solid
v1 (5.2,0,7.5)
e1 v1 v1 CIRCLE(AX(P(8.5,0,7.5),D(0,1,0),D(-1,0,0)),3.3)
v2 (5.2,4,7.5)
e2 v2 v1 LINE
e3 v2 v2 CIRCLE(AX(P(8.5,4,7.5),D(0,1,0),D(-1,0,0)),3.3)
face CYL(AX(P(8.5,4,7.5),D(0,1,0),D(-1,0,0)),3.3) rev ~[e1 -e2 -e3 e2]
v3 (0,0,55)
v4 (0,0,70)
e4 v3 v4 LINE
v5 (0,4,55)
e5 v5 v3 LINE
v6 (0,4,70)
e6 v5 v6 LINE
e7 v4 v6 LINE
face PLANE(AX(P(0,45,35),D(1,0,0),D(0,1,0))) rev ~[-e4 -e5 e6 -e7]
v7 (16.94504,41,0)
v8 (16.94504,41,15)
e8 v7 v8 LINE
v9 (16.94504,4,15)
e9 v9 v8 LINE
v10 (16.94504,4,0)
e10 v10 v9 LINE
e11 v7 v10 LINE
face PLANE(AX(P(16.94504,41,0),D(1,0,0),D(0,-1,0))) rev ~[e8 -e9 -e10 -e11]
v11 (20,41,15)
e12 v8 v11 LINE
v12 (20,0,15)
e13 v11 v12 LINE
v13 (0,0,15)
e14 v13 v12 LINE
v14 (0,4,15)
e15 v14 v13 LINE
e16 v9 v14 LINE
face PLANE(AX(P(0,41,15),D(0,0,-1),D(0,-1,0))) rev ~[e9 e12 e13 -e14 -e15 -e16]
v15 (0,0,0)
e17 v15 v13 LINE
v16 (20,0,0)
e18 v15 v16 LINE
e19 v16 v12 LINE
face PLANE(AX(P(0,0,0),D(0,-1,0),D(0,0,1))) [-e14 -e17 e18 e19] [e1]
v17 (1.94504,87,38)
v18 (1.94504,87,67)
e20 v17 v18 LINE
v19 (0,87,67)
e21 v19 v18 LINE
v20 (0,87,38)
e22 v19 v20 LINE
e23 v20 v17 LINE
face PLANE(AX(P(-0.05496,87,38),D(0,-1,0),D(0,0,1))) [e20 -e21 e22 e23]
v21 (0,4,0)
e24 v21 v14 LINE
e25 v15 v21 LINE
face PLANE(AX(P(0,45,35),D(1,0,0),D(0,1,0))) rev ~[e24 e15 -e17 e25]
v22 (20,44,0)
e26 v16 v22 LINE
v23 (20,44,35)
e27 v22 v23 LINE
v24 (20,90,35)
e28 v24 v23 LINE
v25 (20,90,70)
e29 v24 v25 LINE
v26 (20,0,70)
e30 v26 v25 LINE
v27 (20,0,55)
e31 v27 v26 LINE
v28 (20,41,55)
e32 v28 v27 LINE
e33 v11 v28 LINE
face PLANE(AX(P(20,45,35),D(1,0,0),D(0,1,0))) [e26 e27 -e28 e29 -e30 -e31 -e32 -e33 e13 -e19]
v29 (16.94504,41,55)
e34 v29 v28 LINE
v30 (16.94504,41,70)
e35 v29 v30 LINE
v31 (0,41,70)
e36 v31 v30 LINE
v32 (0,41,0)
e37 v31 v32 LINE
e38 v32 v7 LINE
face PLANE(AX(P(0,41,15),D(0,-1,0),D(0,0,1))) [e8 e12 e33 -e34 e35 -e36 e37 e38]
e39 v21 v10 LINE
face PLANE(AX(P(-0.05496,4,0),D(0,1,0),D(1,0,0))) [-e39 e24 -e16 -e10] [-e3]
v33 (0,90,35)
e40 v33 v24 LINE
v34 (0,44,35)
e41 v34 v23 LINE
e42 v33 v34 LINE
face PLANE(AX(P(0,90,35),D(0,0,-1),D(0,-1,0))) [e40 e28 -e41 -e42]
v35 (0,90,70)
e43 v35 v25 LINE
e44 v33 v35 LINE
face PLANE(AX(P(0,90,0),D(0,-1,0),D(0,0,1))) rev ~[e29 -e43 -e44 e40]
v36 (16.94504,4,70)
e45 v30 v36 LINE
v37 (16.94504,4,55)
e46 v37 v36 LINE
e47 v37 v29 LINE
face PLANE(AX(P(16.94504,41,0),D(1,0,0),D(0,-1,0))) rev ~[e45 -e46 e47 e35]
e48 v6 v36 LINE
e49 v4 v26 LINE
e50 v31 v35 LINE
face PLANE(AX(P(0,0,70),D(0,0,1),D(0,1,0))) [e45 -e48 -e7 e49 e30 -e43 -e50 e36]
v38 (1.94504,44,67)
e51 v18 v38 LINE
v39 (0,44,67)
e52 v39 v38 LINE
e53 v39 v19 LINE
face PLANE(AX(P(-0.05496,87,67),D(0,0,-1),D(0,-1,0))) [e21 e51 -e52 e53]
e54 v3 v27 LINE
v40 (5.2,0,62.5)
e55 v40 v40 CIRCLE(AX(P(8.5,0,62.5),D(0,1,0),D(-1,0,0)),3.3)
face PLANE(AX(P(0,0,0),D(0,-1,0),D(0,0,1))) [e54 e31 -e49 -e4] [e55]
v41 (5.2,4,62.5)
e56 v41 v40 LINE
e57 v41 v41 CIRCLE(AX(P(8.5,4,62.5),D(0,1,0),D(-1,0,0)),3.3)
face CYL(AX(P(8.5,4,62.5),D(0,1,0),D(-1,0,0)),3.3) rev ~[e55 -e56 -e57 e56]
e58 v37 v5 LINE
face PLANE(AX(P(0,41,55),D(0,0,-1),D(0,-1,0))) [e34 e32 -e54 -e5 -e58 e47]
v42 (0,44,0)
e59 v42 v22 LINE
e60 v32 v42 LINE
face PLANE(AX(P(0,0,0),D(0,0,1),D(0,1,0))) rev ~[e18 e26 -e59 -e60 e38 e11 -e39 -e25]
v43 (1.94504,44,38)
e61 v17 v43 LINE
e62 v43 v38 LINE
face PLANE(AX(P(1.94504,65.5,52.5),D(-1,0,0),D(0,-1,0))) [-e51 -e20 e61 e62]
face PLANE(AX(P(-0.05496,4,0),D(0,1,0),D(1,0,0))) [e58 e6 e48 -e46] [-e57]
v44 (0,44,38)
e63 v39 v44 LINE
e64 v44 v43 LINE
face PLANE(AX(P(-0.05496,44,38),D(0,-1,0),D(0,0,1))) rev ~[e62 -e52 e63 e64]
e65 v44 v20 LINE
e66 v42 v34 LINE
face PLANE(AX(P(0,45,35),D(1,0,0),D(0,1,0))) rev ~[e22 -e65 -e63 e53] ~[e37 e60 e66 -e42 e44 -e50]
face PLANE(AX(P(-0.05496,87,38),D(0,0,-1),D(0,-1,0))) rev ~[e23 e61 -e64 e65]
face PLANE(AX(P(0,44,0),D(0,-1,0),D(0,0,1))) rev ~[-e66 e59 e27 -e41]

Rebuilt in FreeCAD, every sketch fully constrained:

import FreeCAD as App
import Part
import Sketcher

V = App.Vector
Q = App.Units.Quantity

doc = App.newDocument("Part")
params = doc.addObject("Spreadsheet::Sheet", "Params")
for row, (alias, value) in enumerate([
    ("sketch1_width", "43 mm"),
    ("sketch1_height", "29 mm"),
    ("pad1_length", "2 mm"),
    ("sketch2_width", "17 mm"),
    ("sketch2_height", "37 mm"),
    ("pad2_length", "70 mm"),
    ("sketch3_width", "41 mm"),
    ("sketch3_height", "40 mm"),
    ("pad3_length", "20 mm"),
    ("sketch4_width", "46 mm"),
    ("sketch4_height", "35 mm"),
    ("pad4_length", "20 mm"),
    ("sketch5_width", "90 mm"),
    ("sketch5_height", "70 mm"),
    ("pad5_length", "20 mm"),
    ("sketch6_diameter", "6.6 mm"),
], start=1):
    params.set(f"A{row}", alias)
    params.set(f"B{row}", "=" + value)
    params.setAlias(f"B{row}", alias)

body = doc.addObject("PartDesign::Body", "Body")

# Sketch on YZ plane
sketch1 = doc.addObject("Sketcher::SketchObject", "Sketch")
body.addObject(sketch1)
sketch1.AttachmentSupport = (doc.YZ_Plane, [""])
sketch1.MapMode = "FlatFace"
sketch1.AttachmentOffset = App.Placement(V(0, 0, -0.05496), App.Rotation())
sketch1.addGeometry([
    Part.LineSegment(V(87, 67, 0), V(87, 38, 0)),
    Part.LineSegment(V(87, 38, 0), V(44, 38, 0)),
    Part.LineSegment(V(44, 38, 0), V(44, 67, 0)),
    Part.LineSegment(V(44, 67, 0), V(87, 67, 0)),
], False)
sketch1.addConstraint([
    Sketcher.Constraint("Coincident", 0, 2, 1, 1),
    Sketcher.Constraint("Coincident", 1, 2, 2, 1),
    Sketcher.Constraint("Coincident", 2, 2, 3, 1),
    Sketcher.Constraint("Coincident", 3, 2, 0, 1),
    Sketcher.Constraint("Vertical", 0),
    Sketcher.Constraint("Horizontal", 1),
    Sketcher.Constraint("Vertical", 2),
    Sketcher.Constraint("Horizontal", 3),
    Sketcher.Constraint("DistanceX", 1, 2, 1, 1, Q("43 mm")),
    Sketcher.Constraint("DistanceY", 0, 2, 0, 1, Q("29 mm")),
    Sketcher.Constraint("DistanceX", -1, 1, 0, 2, Q("87 mm")),
    Sketcher.Constraint("DistanceY", -1, 1, 0, 2, Q("38 mm")),
])
sketch1.setExpression("Constraints[8]", "Params.sketch1_width")
sketch1.setExpression("Constraints[9]", "Params.sketch1_height")
pad1 = doc.addObject("PartDesign::Pad", "Pad")
body.addObject(pad1)
pad1.Profile = sketch1
pad1.setExpression("Length", "Params.pad1_length")
body2 = doc.addObject("PartDesign::Body", "Body001")

# Sketch on XY plane
sketch2 = doc.addObject("Sketcher::SketchObject", "Sketch001")
body2.addObject(sketch2)
sketch2.AttachmentSupport = (doc.getObject("XY_Plane001"), [""])
sketch2.MapMode = "FlatFace"
sketch2.addGeometry([
    Part.LineSegment(V(0, 4, 0), V(0, 41, 0)),
    Part.LineSegment(V(0, 41, 0), V(17, 41, 0)),
    Part.LineSegment(V(17, 41, 0), V(17, 4, 0)),
    Part.LineSegment(V(17, 4, 0), V(0, 4, 0)),
], False)
sketch2.addConstraint([
    Sketcher.Constraint("Coincident", 0, 2, 1, 1),
    Sketcher.Constraint("Coincident", 1, 2, 2, 1),
    Sketcher.Constraint("Coincident", 2, 2, 3, 1),
    Sketcher.Constraint("Coincident", 3, 2, 0, 1),
    Sketcher.Constraint("Vertical", 0),
    Sketcher.Constraint("Horizontal", 1),
    Sketcher.Constraint("Vertical", 2),
    Sketcher.Constraint("Horizontal", 3),
    Sketcher.Constraint("DistanceX", 1, 1, 1, 2, Q("17 mm")),
    Sketcher.Constraint("DistanceY", 0, 1, 0, 2, Q("37 mm")),
    Sketcher.Constraint("DistanceY", -1, 1, 0, 2, Q("41 mm")),
    Sketcher.Constraint("DistanceX", 0, 2, -1, 1, Q("0.05496 mm")),
])
sketch2.setExpression("Constraints[8]", "Params.sketch2_width")
sketch2.setExpression("Constraints[9]", "Params.sketch2_height")
pad2 = doc.addObject("PartDesign::Pad", "Pad001")
body2.addObject(pad2)
pad2.Profile = sketch2
pad2.setExpression("Length", "Params.pad2_length")
body3 = doc.addObject("PartDesign::Body", "Body002")

# Sketch on YZ plane
sketch3 = doc.addObject("Sketcher::SketchObject", "Sketch002")
body3.addObject(sketch3)
sketch3.AttachmentSupport = (doc.getObject("YZ_Plane002"), [""])
sketch3.MapMode = "FlatFace"
sketch3.addGeometry([
    Part.LineSegment(V(41, 55, 0), V(41, 15, 0)),
    Part.LineSegment(V(41, 15, 0), V(0, 15, 0)),
    Part.LineSegment(V(0, 15, 0), V(0, 55, 0)),
    Part.LineSegment(V(0, 55, 0), V(41, 55, 0)),
], False)
sketch3.addConstraint([
    Sketcher.Constraint("Coincident", 0, 2, 1, 1),
    Sketcher.Constraint("Coincident", 1, 2, 2, 1),
    Sketcher.Constraint("Coincident", 2, 2, 3, 1),
    Sketcher.Constraint("Coincident", 3, 2, 0, 1),
    Sketcher.Constraint("Vertical", 0),
    Sketcher.Constraint("Horizontal", 1),
    Sketcher.Constraint("Vertical", 2),
    Sketcher.Constraint("Horizontal", 3),
    Sketcher.Constraint("PointOnObject", 1, 2, -2),
    Sketcher.Constraint("DistanceX", 1, 2, 1, 1, Q("41 mm")),
    Sketcher.Constraint("DistanceY", 0, 2, 0, 1, Q("40 mm")),
    Sketcher.Constraint("DistanceY", -1, 1, 0, 2, Q("15 mm")),
])
sketch3.setExpression("Constraints[9]", "Params.sketch3_width")
sketch3.setExpression("Constraints[10]", "Params.sketch3_height")
pad3 = doc.addObject("PartDesign::Pad", "Pad002")
body3.addObject(pad3)
pad3.Profile = sketch3
pad3.setExpression("Length", "Params.pad3_length")
body4 = doc.addObject("PartDesign::Body", "Body003")

# Sketch on YZ plane
sketch4 = doc.addObject("Sketcher::SketchObject", "Sketch003")
body4.addObject(sketch4)
sketch4.AttachmentSupport = (doc.getObject("YZ_Plane003"), [""])
sketch4.MapMode = "FlatFace"
sketch4.addGeometry([
    Part.LineSegment(V(90, 35, 0), V(90, 0, 0)),
    Part.LineSegment(V(90, 0, 0), V(44, 0, 0)),
    Part.LineSegment(V(44, 0, 0), V(44, 35, 0)),
    Part.LineSegment(V(44, 35, 0), V(90, 35, 0)),
], False)
sketch4.addConstraint([
    Sketcher.Constraint("Coincident", 0, 2, 1, 1),
    Sketcher.Constraint("Coincident", 1, 2, 2, 1),
    Sketcher.Constraint("Coincident", 2, 2, 3, 1),
    Sketcher.Constraint("Coincident", 3, 2, 0, 1),
    Sketcher.Constraint("Vertical", 0),
    Sketcher.Constraint("Horizontal", 1),
    Sketcher.Constraint("Vertical", 2),
    Sketcher.Constraint("Horizontal", 3),
    Sketcher.Constraint("PointOnObject", 0, 2, -1),
    Sketcher.Constraint("DistanceX", 1, 2, 1, 1, Q("46 mm")),
    Sketcher.Constraint("DistanceY", 0, 2, 0, 1, Q("35 mm")),
    Sketcher.Constraint("DistanceX", -1, 1, 0, 2, Q("90 mm")),
])
sketch4.setExpression("Constraints[9]", "Params.sketch4_width")
sketch4.setExpression("Constraints[10]", "Params.sketch4_height")
pad4 = doc.addObject("PartDesign::Pad", "Pad003")
body4.addObject(pad4)
pad4.Profile = sketch4
pad4.setExpression("Length", "Params.pad4_length")
body5 = doc.addObject("PartDesign::Body", "Body004")

# Sketch on YZ plane
sketch5 = doc.addObject("Sketcher::SketchObject", "Sketch004")
body5.addObject(sketch5)
sketch5.AttachmentSupport = (doc.getObject("YZ_Plane004"), [""])
sketch5.MapMode = "FlatFace"
sketch5.addGeometry([
    Part.LineSegment(V(0, 70, 0), V(0, 0, 0)),
    Part.LineSegment(V(0, 0, 0), V(90, 0, 0)),
    Part.LineSegment(V(90, 0, 0), V(90, 70, 0)),
    Part.LineSegment(V(90, 70, 0), V(0, 70, 0)),
], False)
sketch5.addConstraint([
    Sketcher.Constraint("Coincident", 0, 2, 1, 1),
    Sketcher.Constraint("Coincident", 1, 2, 2, 1),
    Sketcher.Constraint("Coincident", 2, 2, 3, 1),
    Sketcher.Constraint("Coincident", 3, 2, 0, 1),
    Sketcher.Constraint("Vertical", 0),
    Sketcher.Constraint("Horizontal", 1),
    Sketcher.Constraint("Vertical", 2),
    Sketcher.Constraint("Horizontal", 3),
    Sketcher.Constraint("Coincident", 0, 2, -1, 1),
    Sketcher.Constraint("DistanceX", 1, 1, 1, 2, Q("90 mm")),
    Sketcher.Constraint("DistanceY", 0, 2, 0, 1, Q("70 mm")),
])
sketch5.setExpression("Constraints[9]", "Params.sketch5_width")
sketch5.setExpression("Constraints[10]", "Params.sketch5_height")
pad5 = doc.addObject("PartDesign::Pad", "Pad004")
body5.addObject(pad5)
pad5.Profile = sketch5
pad5.setExpression("Length", "Params.pad5_length")
doc.recompute()

boolean = doc.addObject("PartDesign::Boolean", "Boolean")
body5.addObject(boolean)
boolean.Type = "Cut"
boolean.addObjects([body])
doc.recompute()

boolean2 = doc.addObject("PartDesign::Boolean", "Boolean001")
body5.addObject(boolean2)
boolean2.Type = "Cut"
boolean2.addObjects([body2])
doc.recompute()

boolean3 = doc.addObject("PartDesign::Boolean", "Boolean002")
body5.addObject(boolean3)
boolean3.Type = "Cut"
boolean3.addObjects([body3])
doc.recompute()

boolean4 = doc.addObject("PartDesign::Boolean", "Boolean003")
body5.addObject(boolean4)
boolean4.Type = "Cut"
boolean4.addObjects([body4])

# Sketch on XZ plane
sketch6 = doc.addObject("Sketcher::SketchObject", "Sketch005")
body5.addObject(sketch6)
sketch6.AttachmentSupport = (doc.getObject("XZ_Plane004"), [""])
sketch6.MapMode = "FlatFace"
sketch6.AttachmentOffset = App.Placement(V(0, 0, -4), App.Rotation())
sketch6.addGeometry([
    Part.Circle(V(8.5, 7.5, 0), V(0, 0, 1), 3.3),
    Part.Circle(V(8.5, 62.5, 0), V(0, 0, 1), 3.3),
], False)
sketch6.addConstraint([
    Sketcher.Constraint("Equal", 0, 1),
    Sketcher.Constraint("Vertical", 0, 3, 1, 3),
    Sketcher.Constraint("Diameter", 0, Q("6.6 mm")),
    Sketcher.Constraint("DistanceY", 0, 3, 1, 3, Q("55 mm")),
    Sketcher.Constraint("DistanceX", -1, 1, 0, 3, Q("8.5 mm")),
    Sketcher.Constraint("DistanceY", -1, 1, 0, 3, Q("7.5 mm")),
])
sketch6.setExpression("Constraints[2]", "Params.sketch6_diameter")
pocket1 = doc.addObject("PartDesign::Pocket", "Pocket")
body5.addObject(pocket1)
pocket1.Profile = sketch6
pocket1.Type = "ThroughAll"
pocket1.Reversed = True

doc.recompute()
